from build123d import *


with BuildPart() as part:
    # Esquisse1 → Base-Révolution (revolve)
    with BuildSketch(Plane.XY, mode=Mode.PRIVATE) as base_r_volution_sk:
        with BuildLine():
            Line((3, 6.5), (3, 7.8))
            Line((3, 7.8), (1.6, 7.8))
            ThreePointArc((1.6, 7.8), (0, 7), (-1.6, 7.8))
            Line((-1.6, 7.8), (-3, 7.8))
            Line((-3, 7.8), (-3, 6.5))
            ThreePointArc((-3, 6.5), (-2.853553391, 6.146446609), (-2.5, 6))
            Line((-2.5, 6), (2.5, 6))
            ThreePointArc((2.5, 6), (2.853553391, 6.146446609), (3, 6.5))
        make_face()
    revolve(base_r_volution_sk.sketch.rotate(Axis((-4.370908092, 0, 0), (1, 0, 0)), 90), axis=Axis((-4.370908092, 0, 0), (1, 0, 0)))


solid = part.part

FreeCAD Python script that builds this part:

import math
import FreeCAD as App
import Part
import Sketcher
from FreeCAD import Vector
Q = App.Units.Quantity

doc = App.newDocument("Part")
body = doc.addObject("PartDesign::Body", "Body")

sketch1 = doc.addObject("Sketcher::SketchObject", "Sketch")
body.addObject(sketch1)
sketch1.AttachmentSupport = (doc.XY_Plane, [""])
sketch1.MapMode = "FlatFace"
sketch1.addGeometry([
    Part.LineSegment(Vector(3, 6.5, 0), Vector(3, 7.8, 0)),
    Part.LineSegment(Vector(3, 7.8, 0), Vector(1.6, 7.8, 0)),
    Part.ArcOfCircle(Part.Circle(Vector(0, 9, 0), Vector(0, 0, 1), 2), math.radians(-143), math.radians(-37)),
    Part.LineSegment(Vector(-1.6, 7.8, 0), Vector(-3, 7.8, 0)),
    Part.LineSegment(Vector(-3, 7.8, 0), Vector(-3, 6.5, 0)),
    Part.ArcOfCircle(Part.Circle(Vector(-2.5, 6.5, 0), Vector(0, 0, 1), 0.5), math.radians(180), math.radians(270)),
    Part.LineSegment(Vector(-2.5, 6, 0), Vector(2.5, 6, 0)),
    Part.ArcOfCircle(Part.Circle(Vector(2.5, 6.5, 0), Vector(0, 0, 1), 0.5), math.radians(-90), math.radians(0)),
], False)
sketch1.addConstraint([
    Sketcher.Constraint("Coincident", 0, 2, 1, 1),
    Sketcher.Constraint("Coincident", 1, 2, 2, 2),
    Sketcher.Constraint("Coincident", 2, 1, 3, 1),
    Sketcher.Constraint("Coincident", 3, 2, 4, 1),
    Sketcher.Constraint("Tangent", 4, 2, 5, 1),
    Sketcher.Constraint("Tangent", 5, 2, 6, 1),
    Sketcher.Constraint("Tangent", 6, 2, 7, 1),
    Sketcher.Constraint("Tangent", 7, 2, 0, 1),
    Sketcher.Constraint("Vertical", 0),
    Sketcher.Constraint("Horizontal", 1),
    Sketcher.Constraint("Horizontal", 3),
    Sketcher.Constraint("Vertical", 4),
    Sketcher.Constraint("Horizontal", 6),
    Sketcher.Constraint("Equal", 5, 7),
    Sketcher.Constraint("Symmetric", 1, 2, 2, 1, -2),
    Sketcher.Constraint("Equal", 1, 3),
    Sketcher.Constraint("Radius", 2, Q("2 mm")),
    Sketcher.Constraint("Radius", 5, Q("0.5 mm")),
    Sketcher.Constraint("DistanceX", 6, 1, 6, 2, Q("5 mm")),
    Sketcher.Constraint("DistanceX", 1, 2, 1, 1, Q("1.4 mm")),
    Sketcher.Constraint("DistanceY", 0, 1, 0, 2, Q("1.3 mm")),
    Sketcher.Constraint("DistanceY", -1, 1, 2, 3, Q("9 mm")),
])
revolution = doc.addObject("PartDesign::Revolution", "Revolution")
body.addObject(revolution)
revolution.Profile = sketch1
revolution.ReferenceAxis = (sketch1, ["H_Axis"])
revolution.Angle = 360

doc.recompute()
